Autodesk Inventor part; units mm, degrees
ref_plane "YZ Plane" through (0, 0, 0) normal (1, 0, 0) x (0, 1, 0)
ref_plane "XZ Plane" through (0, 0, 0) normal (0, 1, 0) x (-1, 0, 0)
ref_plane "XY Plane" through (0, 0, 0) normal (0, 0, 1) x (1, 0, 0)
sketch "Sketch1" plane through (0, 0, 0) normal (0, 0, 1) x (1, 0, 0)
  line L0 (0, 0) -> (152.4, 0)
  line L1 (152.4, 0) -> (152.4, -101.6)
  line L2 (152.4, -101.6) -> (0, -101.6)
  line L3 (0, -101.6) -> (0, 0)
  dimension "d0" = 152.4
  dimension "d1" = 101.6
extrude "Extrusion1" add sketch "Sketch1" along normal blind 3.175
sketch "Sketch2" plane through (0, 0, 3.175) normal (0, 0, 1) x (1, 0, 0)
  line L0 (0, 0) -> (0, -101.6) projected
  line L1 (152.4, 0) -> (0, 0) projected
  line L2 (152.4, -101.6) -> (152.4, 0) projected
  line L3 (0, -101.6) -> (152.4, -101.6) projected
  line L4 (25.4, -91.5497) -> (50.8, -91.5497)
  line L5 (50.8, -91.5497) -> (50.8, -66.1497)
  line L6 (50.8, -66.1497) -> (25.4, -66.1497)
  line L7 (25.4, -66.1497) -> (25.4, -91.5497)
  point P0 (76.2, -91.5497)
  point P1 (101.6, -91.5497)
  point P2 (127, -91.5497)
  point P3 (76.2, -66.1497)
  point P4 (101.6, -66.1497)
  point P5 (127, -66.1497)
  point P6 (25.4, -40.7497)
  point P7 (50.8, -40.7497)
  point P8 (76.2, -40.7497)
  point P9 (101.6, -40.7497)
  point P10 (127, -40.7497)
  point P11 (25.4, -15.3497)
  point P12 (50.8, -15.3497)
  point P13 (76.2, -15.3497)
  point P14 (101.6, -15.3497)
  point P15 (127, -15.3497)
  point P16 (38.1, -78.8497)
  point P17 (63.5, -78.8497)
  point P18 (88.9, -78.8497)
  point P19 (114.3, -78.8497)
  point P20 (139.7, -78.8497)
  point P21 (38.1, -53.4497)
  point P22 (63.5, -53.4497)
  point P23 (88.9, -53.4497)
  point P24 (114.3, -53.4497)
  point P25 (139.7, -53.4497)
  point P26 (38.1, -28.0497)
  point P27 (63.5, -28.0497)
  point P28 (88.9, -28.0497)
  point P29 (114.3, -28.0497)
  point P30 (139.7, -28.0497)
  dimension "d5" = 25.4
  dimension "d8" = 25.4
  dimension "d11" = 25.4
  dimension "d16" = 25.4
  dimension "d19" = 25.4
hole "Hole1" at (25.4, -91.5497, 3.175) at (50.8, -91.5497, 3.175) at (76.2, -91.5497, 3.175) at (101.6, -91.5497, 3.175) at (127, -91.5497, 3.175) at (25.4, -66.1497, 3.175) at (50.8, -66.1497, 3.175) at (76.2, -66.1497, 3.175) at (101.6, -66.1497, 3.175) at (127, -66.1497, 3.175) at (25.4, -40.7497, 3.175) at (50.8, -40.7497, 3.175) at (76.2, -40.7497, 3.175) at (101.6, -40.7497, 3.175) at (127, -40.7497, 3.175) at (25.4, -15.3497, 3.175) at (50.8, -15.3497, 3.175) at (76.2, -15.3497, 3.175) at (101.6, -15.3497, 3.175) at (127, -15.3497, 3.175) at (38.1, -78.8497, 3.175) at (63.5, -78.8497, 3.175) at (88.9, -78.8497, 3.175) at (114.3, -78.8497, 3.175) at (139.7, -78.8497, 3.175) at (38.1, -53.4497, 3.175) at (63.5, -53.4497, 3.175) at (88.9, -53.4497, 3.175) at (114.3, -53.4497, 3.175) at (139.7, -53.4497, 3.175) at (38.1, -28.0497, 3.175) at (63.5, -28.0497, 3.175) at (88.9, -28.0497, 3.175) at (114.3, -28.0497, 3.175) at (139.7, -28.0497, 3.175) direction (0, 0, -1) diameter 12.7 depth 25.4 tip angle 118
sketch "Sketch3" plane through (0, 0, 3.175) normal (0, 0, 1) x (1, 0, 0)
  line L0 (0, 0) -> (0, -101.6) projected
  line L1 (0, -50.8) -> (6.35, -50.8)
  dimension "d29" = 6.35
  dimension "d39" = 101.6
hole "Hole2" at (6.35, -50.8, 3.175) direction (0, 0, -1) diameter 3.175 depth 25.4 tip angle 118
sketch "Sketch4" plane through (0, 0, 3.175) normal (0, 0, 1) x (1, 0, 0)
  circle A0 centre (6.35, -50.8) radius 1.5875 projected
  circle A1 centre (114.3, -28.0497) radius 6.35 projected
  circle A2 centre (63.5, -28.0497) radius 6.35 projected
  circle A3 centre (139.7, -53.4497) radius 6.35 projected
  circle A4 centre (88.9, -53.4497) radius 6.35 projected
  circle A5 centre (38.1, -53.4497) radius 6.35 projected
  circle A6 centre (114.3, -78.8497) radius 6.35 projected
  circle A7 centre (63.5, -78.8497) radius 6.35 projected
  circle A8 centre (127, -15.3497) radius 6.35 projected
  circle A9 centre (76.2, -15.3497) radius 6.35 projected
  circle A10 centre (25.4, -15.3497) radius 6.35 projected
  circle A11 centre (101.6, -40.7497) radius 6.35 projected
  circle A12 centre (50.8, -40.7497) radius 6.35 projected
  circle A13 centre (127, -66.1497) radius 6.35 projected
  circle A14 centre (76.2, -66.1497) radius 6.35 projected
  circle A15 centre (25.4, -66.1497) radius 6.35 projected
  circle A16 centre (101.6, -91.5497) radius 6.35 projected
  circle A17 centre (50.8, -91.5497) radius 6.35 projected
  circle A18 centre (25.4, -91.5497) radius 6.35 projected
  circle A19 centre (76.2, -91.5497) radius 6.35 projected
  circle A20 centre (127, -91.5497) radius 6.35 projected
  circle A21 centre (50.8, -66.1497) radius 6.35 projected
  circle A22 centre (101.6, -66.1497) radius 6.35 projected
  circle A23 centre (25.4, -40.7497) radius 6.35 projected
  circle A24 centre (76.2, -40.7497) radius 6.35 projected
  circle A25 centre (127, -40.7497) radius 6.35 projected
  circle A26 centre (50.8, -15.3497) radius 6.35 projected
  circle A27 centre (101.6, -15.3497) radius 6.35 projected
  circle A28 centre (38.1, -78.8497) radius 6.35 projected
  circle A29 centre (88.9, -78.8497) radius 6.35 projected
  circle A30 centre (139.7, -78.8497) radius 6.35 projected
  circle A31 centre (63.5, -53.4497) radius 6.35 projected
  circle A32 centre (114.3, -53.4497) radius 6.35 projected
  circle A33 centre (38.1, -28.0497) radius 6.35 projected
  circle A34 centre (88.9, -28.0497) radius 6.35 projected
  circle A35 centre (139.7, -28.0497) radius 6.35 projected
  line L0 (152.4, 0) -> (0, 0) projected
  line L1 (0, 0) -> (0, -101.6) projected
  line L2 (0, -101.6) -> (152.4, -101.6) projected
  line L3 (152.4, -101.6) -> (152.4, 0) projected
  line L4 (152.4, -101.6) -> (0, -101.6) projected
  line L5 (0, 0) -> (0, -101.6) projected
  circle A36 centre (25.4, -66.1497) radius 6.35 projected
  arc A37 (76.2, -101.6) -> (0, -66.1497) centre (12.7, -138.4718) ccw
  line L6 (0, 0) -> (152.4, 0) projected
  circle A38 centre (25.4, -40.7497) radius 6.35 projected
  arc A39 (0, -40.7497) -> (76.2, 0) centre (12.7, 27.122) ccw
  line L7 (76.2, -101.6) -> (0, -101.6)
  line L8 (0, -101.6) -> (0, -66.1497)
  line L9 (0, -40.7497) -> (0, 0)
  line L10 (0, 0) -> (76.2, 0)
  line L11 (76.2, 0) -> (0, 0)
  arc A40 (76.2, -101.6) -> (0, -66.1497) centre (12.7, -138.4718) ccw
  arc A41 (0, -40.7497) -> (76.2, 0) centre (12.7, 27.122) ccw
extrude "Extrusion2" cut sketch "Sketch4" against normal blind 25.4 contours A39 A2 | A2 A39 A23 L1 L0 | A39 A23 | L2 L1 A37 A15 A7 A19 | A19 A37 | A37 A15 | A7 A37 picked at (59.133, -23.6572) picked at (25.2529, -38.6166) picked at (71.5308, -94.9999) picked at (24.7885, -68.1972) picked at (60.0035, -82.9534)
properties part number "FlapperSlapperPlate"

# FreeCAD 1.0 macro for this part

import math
import FreeCAD as App
import Part
import Sketcher
from FreeCAD import Vector
Q = App.Units.Quantity

doc = App.newDocument("Part")
body = doc.addObject("PartDesign::Body", "Body")

# Sketch on XY plane
sketch1 = body.newObject("Sketcher::SketchObject", "Sketch")
sketch1.AttachmentSupport = (doc.getObject("XY_Plane"), [""])
sketch1.MapMode = "FlatFace"
sketch1.addGeometry(Part.LineSegment(Vector(152.4, 0, 0), Vector(0, 0, 0)), False)
sketch1.addGeometry(Part.LineSegment(Vector(0, 0, 0), Vector(0, -101.6, 0)), False)
sketch1.addGeometry(Part.LineSegment(Vector(0, -101.6, 0), Vector(152.4, -101.6, 0)), False)
sketch1.addGeometry(Part.LineSegment(Vector(152.4, -101.6, 0), Vector(152.4, 0, 0)), False)
sketch1.addConstraint(Sketcher.Constraint("Coincident", 0, 2, 1, 1))
sketch1.addConstraint(Sketcher.Constraint("Coincident", 1, 2, 2, 1))
sketch1.addConstraint(Sketcher.Constraint("Coincident", 2, 2, 3, 1))
sketch1.addConstraint(Sketcher.Constraint("Coincident", 3, 2, 0, 1))
sketch1.addConstraint(Sketcher.Constraint("Horizontal", 0))
sketch1.addConstraint(Sketcher.Constraint("Vertical", 1))
sketch1.addConstraint(Sketcher.Constraint("Horizontal", 2))
sketch1.addConstraint(Sketcher.Constraint("Vertical", 3))
sketch1.addConstraint(Sketcher.Constraint("Coincident", 0, 2, -1, 1))
sketch1.addConstraint(Sketcher.Constraint("DistanceX", 0, 2, 0, 1, Q("6 in")))
sketch1.addConstraint(Sketcher.Constraint("DistanceY", 1, 2, 1, 1, Q("4 in")))
pad1 = body.newObject("PartDesign::Pad", "Pad")
pad1.Profile = sketch1
pad1.Length = Q("0.125 in")

# Sketch on XY plane
sketch2 = body.newObject("Sketcher::SketchObject", "Sketch001")
sketch2.AttachmentSupport = (doc.getObject("XY_Plane"), [""])
sketch2.MapMode = "FlatFace"
sketch2.AttachmentOffset = App.Placement(Vector(0, 0, 0.125 * 25.4), App.Rotation())
sketch2.addGeometry(Part.Circle(Vector(25.4, -91.5497, 0), Vector(0, 0, 1), 6.35), False)
sketch2.addGeometry(Part.Circle(Vector(50.8, -91.5497, 0), Vector(0, 0, 1), 6.35), False)
sketch2.addGeometry(Part.Circle(Vector(76.2, -91.5497, 0), Vector(0, 0, 1), 6.35), False)
sketch2.addGeometry(Part.Circle(Vector(101.6, -91.5497, 0), Vector(0, 0, 1), 6.35), False)
sketch2.addGeometry(Part.Circle(Vector(127, -91.5497, 0), Vector(0, 0, 1), 6.35), False)
sketch2.addGeometry(Part.Circle(Vector(25.4, -66.1497, 0), Vector(0, 0, 1), 6.35), False)
sketch2.addGeometry(Part.Circle(Vector(50.8, -66.1497, 0), Vector(0, 0, 1), 6.35), False)
sketch2.addGeometry(Part.Circle(Vector(76.2, -66.1497, 0), Vector(0, 0, 1), 6.35), False)
sketch2.addGeometry(Part.Circle(Vector(101.6, -66.1497, 0), Vector(0, 0, 1), 6.35), False)
sketch2.addGeometry(Part.Circle(Vector(127, -66.1497, 0), Vector(0, 0, 1), 6.35), False)
sketch2.addGeometry(Part.Circle(Vector(25.4, -40.7497, 0), Vector(0, 0, 1), 6.35), False)
sketch2.addGeometry(Part.Circle(Vector(50.8, -40.7497, 0), Vector(0, 0, 1), 6.35), False)
sketch2.addGeometry(Part.Circle(Vector(76.2, -40.7497, 0), Vector(0, 0, 1), 6.35), False)
sketch2.addGeometry(Part.Circle(Vector(101.6, -40.7497, 0), Vector(0, 0, 1), 6.35), False)
sketch2.addGeometry(Part.Circle(Vector(127, -40.7497, 0), Vector(0, 0, 1), 6.35), False)
sketch2.addGeometry(Part.Circle(Vector(25.4, -15.3497, 0), Vector(0, 0, 1), 6.35), False)
sketch2.addGeometry(Part.Circle(Vector(50.8, -15.3497, 0), Vector(0, 0, 1), 6.35), False)
sketch2.addGeometry(Part.Circle(Vector(76.2, -15.3497, 0), Vector(0, 0, 1), 6.35), False)
sketch2.addGeometry(Part.Circle(Vector(101.6, -15.3497, 0), Vector(0, 0, 1), 6.35), False)
sketch2.addGeometry(Part.Circle(Vector(127, -15.3497, 0), Vector(0, 0, 1), 6.35), False)
sketch2.addGeometry(Part.Circle(Vector(38.1, -78.8497, 0), Vector(0, 0, 1), 6.35), False)
sketch2.addGeometry(Part.Circle(Vector(63.5, -78.8497, 0), Vector(0, 0, 1), 6.35), False)
sketch2.addGeometry(Part.Circle(Vector(88.9, -78.8497, 0), Vector(0, 0, 1), 6.35), False)
sketch2.addGeometry(Part.Circle(Vector(114.3, -78.8497, 0), Vector(0, 0, 1), 6.35), False)
sketch2.addGeometry(Part.Circle(Vector(139.7, -78.8497, 0), Vector(0, 0, 1), 6.35), False)
sketch2.addGeometry(Part.Circle(Vector(38.1, -53.4497, 0), Vector(0, 0, 1), 6.35), False)
sketch2.addGeometry(Part.Circle(Vector(63.5, -53.4497, 0), Vector(0, 0, 1), 6.35), False)
sketch2.addGeometry(Part.Circle(Vector(88.9, -53.4497, 0), Vector(0, 0, 1), 6.35), False)
sketch2.addGeometry(Part.Circle(Vector(114.3, -53.4497, 0), Vector(0, 0, 1), 6.35), False)
sketch2.addGeometry(Part.Circle(Vector(139.7, -53.4497, 0), Vector(0, 0, 1), 6.35), False)
sketch2.addGeometry(Part.Circle(Vector(38.1, -28.0497, 0), Vector(0, 0, 1), 6.35), False)
sketch2.addGeometry(Part.Circle(Vector(63.5, -28.0497, 0), Vector(0, 0, 1), 6.35), False)
sketch2.addGeometry(Part.Circle(Vector(88.9, -28.0497, 0), Vector(0, 0, 1), 6.35), False)
sketch2.addGeometry(Part.Circle(Vector(114.3, -28.0497, 0), Vector(0, 0, 1), 6.35), False)
sketch2.addGeometry(Part.Circle(Vector(139.7, -28.0497, 0), Vector(0, 0, 1), 6.35), False)
sketch2.addConstraint(Sketcher.Constraint("Equal", 0, 1))
sketch2.addConstraint(Sketcher.Constraint("Equal", 1, 2))
sketch2.addConstraint(Sketcher.Constraint("Equal", 2, 3))
sketch2.addConstraint(Sketcher.Constraint("Equal", 3, 4))
sketch2.addConstraint(Sketcher.Constraint("Equal", 4, 5))
sketch2.addConstraint(Sketcher.Constraint("Equal", 5, 6))
sketch2.addConstraint(Sketcher.Constraint("Equal", 6, 7))
sketch2.addConstraint(Sketcher.Constraint("Equal", 7, 8))
sketch2.addConstraint(Sketcher.Constraint("Equal", 8, 9))
sketch2.addConstraint(Sketcher.Constraint("Equal", 9, 10))
sketch2.addConstraint(Sketcher.Constraint("Equal", 10, 11))
sketch2.addConstraint(Sketcher.Constraint("Equal", 11, 12))
sketch2.addConstraint(Sketcher.Constraint("Equal", 12, 13))
sketch2.addConstraint(Sketcher.Constraint("Equal", 13, 14))
sketch2.addConstraint(Sketcher.Constraint("Equal", 14, 15))
sketch2.addConstraint(Sketcher.Constraint("Equal", 15, 16))
sketch2.addConstraint(Sketcher.Constraint("Equal", 16, 17))
sketch2.addConstraint(Sketcher.Constraint("Equal", 17, 18))
sketch2.addConstraint(Sketcher.Constraint("Equal", 18, 19))
sketch2.addConstraint(Sketcher.Constraint("Equal", 19, 20))
sketch2.addConstraint(Sketcher.Constraint("Equal", 20, 21))
sketch2.addConstraint(Sketcher.Constraint("Equal", 21, 22))
sketch2.addConstraint(Sketcher.Constraint("Equal", 22, 23))
sketch2.addConstraint(Sketcher.Constraint("Equal", 23, 24))
sketch2.addConstraint(Sketcher.Constraint("Equal", 24, 25))
sketch2.addConstraint(Sketcher.Constraint("Equal", 25, 26))
sketch2.addConstraint(Sketcher.Constraint("Equal", 26, 27))
sketch2.addConstraint(Sketcher.Constraint("Equal", 27, 28))
sketch2.addConstraint(Sketcher.Constraint("Equal", 28, 29))
sketch2.addConstraint(Sketcher.Constraint("Equal", 29, 30))
sketch2.addConstraint(Sketcher.Constraint("Equal", 30, 31))
sketch2.addConstraint(Sketcher.Constraint("Equal", 31, 32))
sketch2.addConstraint(Sketcher.Constraint("Equal", 32, 33))
sketch2.addConstraint(Sketcher.Constraint("Equal", 33, 34))
sketch2.addConstraint(Sketcher.Constraint("Horizontal", 0, 3, 1, 3))
sketch2.addConstraint(Sketcher.Constraint("Horizontal", 1, 3, 2, 3))
sketch2.addConstraint(Sketcher.Constraint("Horizontal", 2, 3, 3, 3))
sketch2.addConstraint(Sketcher.Constraint("Horizontal", 3, 3, 4, 3))
sketch2.addConstraint(Sketcher.Constraint("Horizontal", 5, 3, 6, 3))
sketch2.addConstraint(Sketcher.Constraint("Horizontal", 6, 3, 7, 3))
sketch2.addConstraint(Sketcher.Constraint("Horizontal", 7, 3, 8, 3))
sketch2.addConstraint(Sketcher.Constraint("Horizontal", 8, 3, 9, 3))
sketch2.addConstraint(Sketcher.Constraint("Horizontal", 10, 3, 11, 3))
sketch2.addConstraint(Sketcher.Constraint("Horizontal", 11, 3, 12, 3))
sketch2.addConstraint(Sketcher.Constraint("Horizontal", 12, 3, 13, 3))
sketch2.addConstraint(Sketcher.Constraint("Horizontal", 13, 3, 14, 3))
sketch2.addConstraint(Sketcher.Constraint("Horizontal", 15, 3, 16, 3))
sketch2.addConstraint(Sketcher.Constraint("Horizontal", 16, 3, 17, 3))
sketch2.addConstraint(Sketcher.Constraint("Horizontal", 17, 3, 18, 3))
sketch2.addConstraint(Sketcher.Constraint("Horizontal", 18, 3, 19, 3))
sketch2.addConstraint(Sketcher.Constraint("Horizontal", 20, 3, 21, 3))
sketch2.addConstraint(Sketcher.Constraint("Horizontal", 21, 3, 22, 3))
sketch2.addConstraint(Sketcher.Constraint("Horizontal", 22, 3, 23, 3))
sketch2.addConstraint(Sketcher.Constraint("Horizontal", 23, 3, 24, 3))
sketch2.addConstraint(Sketcher.Constraint("Horizontal", 25, 3, 26, 3))
sketch2.addConstraint(Sketcher.Constraint("Horizontal", 26, 3, 27, 3))
sketch2.addConstraint(Sketcher.Constraint("Horizontal", 27, 3, 28, 3))
sketch2.addConstraint(Sketcher.Constraint("Horizontal", 28, 3, 29, 3))
sketch2.addConstraint(Sketcher.Constraint("Horizontal", 30, 3, 31, 3))
sketch2.addConstraint(Sketcher.Constraint("Horizontal", 31, 3, 32, 3))
sketch2.addConstraint(Sketcher.Constraint("Horizontal", 32, 3, 33, 3))
sketch2.addConstraint(Sketcher.Constraint("Horizontal", 33, 3, 34, 3))
sketch2.addConstraint(Sketcher.Constraint("Vertical", 0, 3, 5, 3))
sketch2.addConstraint(Sketcher.Constraint("Vertical", 1, 3, 6, 3))
sketch2.addConstraint(Sketcher.Constraint("Vertical", 2, 3, 7, 3))
sketch2.addConstraint(Sketcher.Constraint("Vertical", 3, 3, 8, 3))
sketch2.addConstraint(Sketcher.Constraint("Vertical", 4, 3, 9, 3))
sketch2.addConstraint(Sketcher.Constraint("Vertical", 5, 3, 10, 3))
sketch2.addConstraint(Sketcher.Constraint("Vertical", 6, 3, 11, 3))
sketch2.addConstraint(Sketcher.Constraint("Vertical", 7, 3, 12, 3))
sketch2.addConstraint(Sketcher.Constraint("Vertical", 8, 3, 13, 3))
sketch2.addConstraint(Sketcher.Constraint("Vertical", 9, 3, 14, 3))
sketch2.addConstraint(Sketcher.Constraint("Vertical", 10, 3, 15, 3))
sketch2.addConstraint(Sketcher.Constraint("Vertical", 11, 3, 16, 3))
sketch2.addConstraint(Sketcher.Constraint("Vertical", 12, 3, 17, 3))
sketch2.addConstraint(Sketcher.Constraint("Vertical", 13, 3, 18, 3))
sketch2.addConstraint(Sketcher.Constraint("Vertical", 14, 3, 19, 3))
sketch2.addConstraint(Sketcher.Constraint("Vertical", 20, 3, 25, 3))
sketch2.addConstraint(Sketcher.Constraint("Vertical", 21, 3, 26, 3))
sketch2.addConstraint(Sketcher.Constraint("Vertical", 22, 3, 27, 3))
sketch2.addConstraint(Sketcher.Constraint("Vertical", 23, 3, 28, 3))
sketch2.addConstraint(Sketcher.Constraint("Vertical", 24, 3, 29, 3))
sketch2.addConstraint(Sketcher.Constraint("Vertical", 25, 3, 30, 3))
sketch2.addConstraint(Sketcher.Constraint("Vertical", 26, 3, 31, 3))
sketch2.addConstraint(Sketcher.Constraint("Vertical", 27, 3, 32, 3))
sketch2.addConstraint(Sketcher.Constraint("Vertical", 28, 3, 33, 3))
sketch2.addConstraint(Sketcher.Constraint("Vertical", 29, 3, 34, 3))
sketch2.addConstraint(Sketcher.Constraint("Diameter", 0, Q("0.5 in")))
sketch2.addConstraint(Sketcher.Constraint("DistanceX", -1, 1, 0, 3, Q("1 in")))
sketch2.addConstraint(Sketcher.Constraint("DistanceX", -1, 1, 1, 3, Q("2 in")))
sketch2.addConstraint(Sketcher.Constraint("DistanceX", -1, 1, 2, 3, Q("3 in")))
sketch2.addConstraint(Sketcher.Constraint("DistanceX", -1, 1, 3, 3, Q("4 in")))
sketch2.addConstraint(Sketcher.Constraint("DistanceX", -1, 1, 4, 3, Q("5 in")))
sketch2.addConstraint(Sketcher.Constraint("DistanceY", 0, 3, 5, 3, Q("1 in")))
sketch2.addConstraint(Sketcher.Constraint("DistanceY", 5, 3, 10, 3, Q("1 in")))
sketch2.addConstraint(Sketcher.Constraint("DistanceY", 10, 3, 15, 3, Q("1 in")))
sketch2.addConstraint(Sketcher.Constraint("DistanceX", 20, 3, 21, 3, Q("1 in")))
sketch2.addConstraint(Sketcher.Constraint("DistanceX", 21, 3, 22, 3, Q("1 in")))
sketch2.addConstraint(Sketcher.Constraint("DistanceX", 22, 3, 23, 3, Q("1 in")))
sketch2.addConstraint(Sketcher.Constraint("DistanceX", 23, 3, 24, 3, Q("1 in")))
sketch2.addConstraint(Sketcher.Constraint("DistanceY", 20, 3, 25, 3, Q("1 in")))
sketch2.addConstraint(Sketcher.Constraint("DistanceY", 25, 3, 30, 3, Q("1 in")))
sketch2.addConstraint(Sketcher.Constraint("DistanceX", -1, 1, 20, 3, Q("1.5 in")))
sketch2.addConstraint(Sketcher.Constraint("DistanceY", 1, 3, 20, 3, Q("0.5 in")))
sketch2.addConstraint(Sketcher.Constraint("DistanceY", 0, 3, -1, 1, 91.5497))
doc.recompute()
hole = body.newObject("PartDesign::Hole", "Hole")
hole.Profile = sketch2
hole.ThreadType = "None"
hole.Diameter = Q("0.5 in")
hole.DepthType = "Dimension"
hole.Depth = Q("1 in")
hole.DrillPoint = "Angled"
hole.DrillPointAngle = 118

# Sketch on XY plane
sketch3 = body.newObject("Sketcher::SketchObject", "Sketch002")
sketch3.AttachmentSupport = (doc.getObject("XY_Plane"), [""])
sketch3.MapMode = "FlatFace"
sketch3.AttachmentOffset = App.Placement(Vector(0, 0, 0.125 * 25.4), App.Rotation())
sketch3.addGeometry(Part.Circle(Vector(6.35, -50.8, 0), Vector(0, 0, 1), 1.5875), False)
sketch3.addConstraint(Sketcher.Constraint("Diameter", 0, Q("0.125 in")))
sketch3.addConstraint(Sketcher.Constraint("DistanceY", 0, 3, -1, 1, Q("2 in")))
sketch3.addConstraint(Sketcher.Constraint("DistanceX", -1, 1, 0, 3, Q("0.25 in")))
doc.recompute()
hole2 = body.newObject("PartDesign::Hole", "Hole001")
hole2.Profile = sketch3
hole2.ThreadType = "None"
hole2.Diameter = Q("0.125 in")
hole2.DepthType = "Dimension"
hole2.Depth = Q("1 in")
hole2.DrillPoint = "Angled"
hole2.DrillPointAngle = 118

# Sketch on XY plane
sketch4 = body.newObject("Sketcher::SketchObject", "Sketch003")
sketch4.AttachmentSupport = (doc.getObject("XY_Plane"), [""])
sketch4.MapMode = "FlatFace"
sketch4.AttachmentOffset = App.Placement(Vector(0, 0, 0.125 * 25.4), App.Rotation())
sketch4.addGeometry(Part.LineSegment(Vector(76.2, 0, 0), Vector(0, 0, 0)), False)
sketch4.addGeometry(Part.LineSegment(Vector(0, 0, 0), Vector(0, -40.7497, 0)), False)
sketch4.addGeometry(Part.ArcOfCircle(Part.Circle(Vector(12.7, 27.122, 0), Vector(0, 0, 1), 69.049675), math.radians(-100.598496), math.radians(-23.128206)), False)
sketch4.addGeometry(Part.Circle(Vector(50.8, -15.3497, 0), Vector(0, 0, 1), 6.35), False)
sketch4.addGeometry(Part.Circle(Vector(38.1, -28.0497, 0), Vector(0, 0, 1), 6.35), False)
sketch4.addGeometry(Part.Circle(Vector(25.4, -15.3497, 0), Vector(0, 0, 1), 6.35), False)
sketch4.addGeometry(Part.LineSegment(Vector(0, -101.6, 0), Vector(76.2, -101.6, 0)), False)
sketch4.addGeometry(Part.ArcOfCircle(Part.Circle(Vector(12.7, -138.4718, 0), Vector(0, 0, 1), 73.428738), math.radians(30.141947), math.radians(99.959782)), False)
sketch4.addGeometry(Part.LineSegment(Vector(0, -66.1497, 0), Vector(0, -101.6, 0)), False)
sketch4.addGeometry(Part.Circle(Vector(25.4, -91.5497, 0), Vector(0, 0, 1), 6.35), False)
sketch4.addGeometry(Part.Circle(Vector(50.8, -91.5497, 0), Vector(0, 0, 1), 6.35), False)
sketch4.addGeometry(Part.Circle(Vector(38.1, -78.8497, 0), Vector(0, 0, 1), 6.35), False)
sketch4.addConstraint(Sketcher.Constraint("Coincident", 0, 2, 1, 1))
sketch4.addConstraint(Sketcher.Constraint("Coincident", 1, 2, 2, 1))
sketch4.addConstraint(Sketcher.Constraint("Coincident", 2, 2, 0, 1))
sketch4.addConstraint(Sketcher.Constraint("Coincident", 6, 2, 7, 1))
sketch4.addConstraint(Sketcher.Constraint("Coincident", 7, 2, 8, 1))
sketch4.addConstraint(Sketcher.Constraint("Coincident", 8, 2, 6, 1))
sketch4.addConstraint(Sketcher.Constraint("Horizontal", 0))
sketch4.addConstraint(Sketcher.Constraint("Vertical", 1))
sketch4.addConstraint(Sketcher.Constraint("Horizontal", 6))
sketch4.addConstraint(Sketcher.Constraint("Vertical", 8))
sketch4.addConstraint(Sketcher.Constraint("Coincident", 0, 2, -1, 1))
sketch4.addConstraint(Sketcher.Constraint("Equal", 3, 4))
sketch4.addConstraint(Sketcher.Constraint("Equal", 4, 5))
sketch4.addConstraint(Sketcher.Constraint("Equal", 5, 9))
sketch4.addConstraint(Sketcher.Constraint("Equal", 9, 10))
sketch4.addConstraint(Sketcher.Constraint("Equal", 10, 11))
sketch4.addConstraint(Sketcher.Constraint("PointOnObject", 7, 2, -2))
sketch4.addConstraint(Sketcher.Constraint("Horizontal", 3, 3, 5, 3))
sketch4.addConstraint(Sketcher.Constraint("Horizontal", 9, 3, 10, 3))
sketch4.addConstraint(Sketcher.Constraint("Vertical", 2, 3, 7, 3))
sketch4.addConstraint(Sketcher.Constraint("Vertical", 5, 3, 9, 3))
sketch4.addConstraint(Sketcher.Constraint("Vertical", 3, 3, 10, 3))
sketch4.addConstraint(Sketcher.Constraint("Vertical", 4, 3, 11, 3))
sketch4.addConstraint(Sketcher.Constraint("Vertical", 2, 2, 6, 2))
sketch4.addConstraint(Sketcher.Constraint("Diameter", 3, Q("0.5 in")))
sketch4.addConstraint(Sketcher.Constraint("DistanceX", 0, 2, 0, 1, Q("3 in")))
sketch4.addConstraint(Sketcher.Constraint("DistanceX", -1, 1, 3, 3, Q("2 in")))
sketch4.addConstraint(Sketcher.Constraint("DistanceX", -1, 1, 5, 3, Q("1 in")))
sketch4.addConstraint(Sketcher.Constraint("DistanceY", 6, 2, -1, 1, Q("4 in")))
sketch4.addConstraint(Sketcher.Constraint("DistanceX", 2, 3, 4, 3, Q("1 in")))
sketch4.addConstraint(Sketcher.Constraint("DistanceY", 9, 3, 5, 3, Q("3 in")))
sketch4.addConstraint(Sketcher.Constraint("DistanceY", 11, 3, 4, 3, Q("2 in")))
sketch4.addConstraint(Sketcher.Constraint("DistanceY", 1, 2, 5, 3, Q("1 in")))
sketch4.addConstraint(Sketcher.Constraint("DistanceY", 7, 2, 1, 2, Q("1 in")))
sketch4.addConstraint(Sketcher.Constraint("DistanceX", -1, 1, 2, 3, Q("0.5 in")))
sketch4.addConstraint(Sketcher.Constraint("Radius", 2, Q("2.7185 in")))
sketch4.addConstraint(Sketcher.Constraint("DistanceY", 4, 3, 3, 3, Q("0.5 in")))
pocket1 = body.newObject("PartDesign::Pocket", "Pocket")
pocket1.Profile = sketch4
pocket1.Length = Q("1 in")

doc.recompute()
